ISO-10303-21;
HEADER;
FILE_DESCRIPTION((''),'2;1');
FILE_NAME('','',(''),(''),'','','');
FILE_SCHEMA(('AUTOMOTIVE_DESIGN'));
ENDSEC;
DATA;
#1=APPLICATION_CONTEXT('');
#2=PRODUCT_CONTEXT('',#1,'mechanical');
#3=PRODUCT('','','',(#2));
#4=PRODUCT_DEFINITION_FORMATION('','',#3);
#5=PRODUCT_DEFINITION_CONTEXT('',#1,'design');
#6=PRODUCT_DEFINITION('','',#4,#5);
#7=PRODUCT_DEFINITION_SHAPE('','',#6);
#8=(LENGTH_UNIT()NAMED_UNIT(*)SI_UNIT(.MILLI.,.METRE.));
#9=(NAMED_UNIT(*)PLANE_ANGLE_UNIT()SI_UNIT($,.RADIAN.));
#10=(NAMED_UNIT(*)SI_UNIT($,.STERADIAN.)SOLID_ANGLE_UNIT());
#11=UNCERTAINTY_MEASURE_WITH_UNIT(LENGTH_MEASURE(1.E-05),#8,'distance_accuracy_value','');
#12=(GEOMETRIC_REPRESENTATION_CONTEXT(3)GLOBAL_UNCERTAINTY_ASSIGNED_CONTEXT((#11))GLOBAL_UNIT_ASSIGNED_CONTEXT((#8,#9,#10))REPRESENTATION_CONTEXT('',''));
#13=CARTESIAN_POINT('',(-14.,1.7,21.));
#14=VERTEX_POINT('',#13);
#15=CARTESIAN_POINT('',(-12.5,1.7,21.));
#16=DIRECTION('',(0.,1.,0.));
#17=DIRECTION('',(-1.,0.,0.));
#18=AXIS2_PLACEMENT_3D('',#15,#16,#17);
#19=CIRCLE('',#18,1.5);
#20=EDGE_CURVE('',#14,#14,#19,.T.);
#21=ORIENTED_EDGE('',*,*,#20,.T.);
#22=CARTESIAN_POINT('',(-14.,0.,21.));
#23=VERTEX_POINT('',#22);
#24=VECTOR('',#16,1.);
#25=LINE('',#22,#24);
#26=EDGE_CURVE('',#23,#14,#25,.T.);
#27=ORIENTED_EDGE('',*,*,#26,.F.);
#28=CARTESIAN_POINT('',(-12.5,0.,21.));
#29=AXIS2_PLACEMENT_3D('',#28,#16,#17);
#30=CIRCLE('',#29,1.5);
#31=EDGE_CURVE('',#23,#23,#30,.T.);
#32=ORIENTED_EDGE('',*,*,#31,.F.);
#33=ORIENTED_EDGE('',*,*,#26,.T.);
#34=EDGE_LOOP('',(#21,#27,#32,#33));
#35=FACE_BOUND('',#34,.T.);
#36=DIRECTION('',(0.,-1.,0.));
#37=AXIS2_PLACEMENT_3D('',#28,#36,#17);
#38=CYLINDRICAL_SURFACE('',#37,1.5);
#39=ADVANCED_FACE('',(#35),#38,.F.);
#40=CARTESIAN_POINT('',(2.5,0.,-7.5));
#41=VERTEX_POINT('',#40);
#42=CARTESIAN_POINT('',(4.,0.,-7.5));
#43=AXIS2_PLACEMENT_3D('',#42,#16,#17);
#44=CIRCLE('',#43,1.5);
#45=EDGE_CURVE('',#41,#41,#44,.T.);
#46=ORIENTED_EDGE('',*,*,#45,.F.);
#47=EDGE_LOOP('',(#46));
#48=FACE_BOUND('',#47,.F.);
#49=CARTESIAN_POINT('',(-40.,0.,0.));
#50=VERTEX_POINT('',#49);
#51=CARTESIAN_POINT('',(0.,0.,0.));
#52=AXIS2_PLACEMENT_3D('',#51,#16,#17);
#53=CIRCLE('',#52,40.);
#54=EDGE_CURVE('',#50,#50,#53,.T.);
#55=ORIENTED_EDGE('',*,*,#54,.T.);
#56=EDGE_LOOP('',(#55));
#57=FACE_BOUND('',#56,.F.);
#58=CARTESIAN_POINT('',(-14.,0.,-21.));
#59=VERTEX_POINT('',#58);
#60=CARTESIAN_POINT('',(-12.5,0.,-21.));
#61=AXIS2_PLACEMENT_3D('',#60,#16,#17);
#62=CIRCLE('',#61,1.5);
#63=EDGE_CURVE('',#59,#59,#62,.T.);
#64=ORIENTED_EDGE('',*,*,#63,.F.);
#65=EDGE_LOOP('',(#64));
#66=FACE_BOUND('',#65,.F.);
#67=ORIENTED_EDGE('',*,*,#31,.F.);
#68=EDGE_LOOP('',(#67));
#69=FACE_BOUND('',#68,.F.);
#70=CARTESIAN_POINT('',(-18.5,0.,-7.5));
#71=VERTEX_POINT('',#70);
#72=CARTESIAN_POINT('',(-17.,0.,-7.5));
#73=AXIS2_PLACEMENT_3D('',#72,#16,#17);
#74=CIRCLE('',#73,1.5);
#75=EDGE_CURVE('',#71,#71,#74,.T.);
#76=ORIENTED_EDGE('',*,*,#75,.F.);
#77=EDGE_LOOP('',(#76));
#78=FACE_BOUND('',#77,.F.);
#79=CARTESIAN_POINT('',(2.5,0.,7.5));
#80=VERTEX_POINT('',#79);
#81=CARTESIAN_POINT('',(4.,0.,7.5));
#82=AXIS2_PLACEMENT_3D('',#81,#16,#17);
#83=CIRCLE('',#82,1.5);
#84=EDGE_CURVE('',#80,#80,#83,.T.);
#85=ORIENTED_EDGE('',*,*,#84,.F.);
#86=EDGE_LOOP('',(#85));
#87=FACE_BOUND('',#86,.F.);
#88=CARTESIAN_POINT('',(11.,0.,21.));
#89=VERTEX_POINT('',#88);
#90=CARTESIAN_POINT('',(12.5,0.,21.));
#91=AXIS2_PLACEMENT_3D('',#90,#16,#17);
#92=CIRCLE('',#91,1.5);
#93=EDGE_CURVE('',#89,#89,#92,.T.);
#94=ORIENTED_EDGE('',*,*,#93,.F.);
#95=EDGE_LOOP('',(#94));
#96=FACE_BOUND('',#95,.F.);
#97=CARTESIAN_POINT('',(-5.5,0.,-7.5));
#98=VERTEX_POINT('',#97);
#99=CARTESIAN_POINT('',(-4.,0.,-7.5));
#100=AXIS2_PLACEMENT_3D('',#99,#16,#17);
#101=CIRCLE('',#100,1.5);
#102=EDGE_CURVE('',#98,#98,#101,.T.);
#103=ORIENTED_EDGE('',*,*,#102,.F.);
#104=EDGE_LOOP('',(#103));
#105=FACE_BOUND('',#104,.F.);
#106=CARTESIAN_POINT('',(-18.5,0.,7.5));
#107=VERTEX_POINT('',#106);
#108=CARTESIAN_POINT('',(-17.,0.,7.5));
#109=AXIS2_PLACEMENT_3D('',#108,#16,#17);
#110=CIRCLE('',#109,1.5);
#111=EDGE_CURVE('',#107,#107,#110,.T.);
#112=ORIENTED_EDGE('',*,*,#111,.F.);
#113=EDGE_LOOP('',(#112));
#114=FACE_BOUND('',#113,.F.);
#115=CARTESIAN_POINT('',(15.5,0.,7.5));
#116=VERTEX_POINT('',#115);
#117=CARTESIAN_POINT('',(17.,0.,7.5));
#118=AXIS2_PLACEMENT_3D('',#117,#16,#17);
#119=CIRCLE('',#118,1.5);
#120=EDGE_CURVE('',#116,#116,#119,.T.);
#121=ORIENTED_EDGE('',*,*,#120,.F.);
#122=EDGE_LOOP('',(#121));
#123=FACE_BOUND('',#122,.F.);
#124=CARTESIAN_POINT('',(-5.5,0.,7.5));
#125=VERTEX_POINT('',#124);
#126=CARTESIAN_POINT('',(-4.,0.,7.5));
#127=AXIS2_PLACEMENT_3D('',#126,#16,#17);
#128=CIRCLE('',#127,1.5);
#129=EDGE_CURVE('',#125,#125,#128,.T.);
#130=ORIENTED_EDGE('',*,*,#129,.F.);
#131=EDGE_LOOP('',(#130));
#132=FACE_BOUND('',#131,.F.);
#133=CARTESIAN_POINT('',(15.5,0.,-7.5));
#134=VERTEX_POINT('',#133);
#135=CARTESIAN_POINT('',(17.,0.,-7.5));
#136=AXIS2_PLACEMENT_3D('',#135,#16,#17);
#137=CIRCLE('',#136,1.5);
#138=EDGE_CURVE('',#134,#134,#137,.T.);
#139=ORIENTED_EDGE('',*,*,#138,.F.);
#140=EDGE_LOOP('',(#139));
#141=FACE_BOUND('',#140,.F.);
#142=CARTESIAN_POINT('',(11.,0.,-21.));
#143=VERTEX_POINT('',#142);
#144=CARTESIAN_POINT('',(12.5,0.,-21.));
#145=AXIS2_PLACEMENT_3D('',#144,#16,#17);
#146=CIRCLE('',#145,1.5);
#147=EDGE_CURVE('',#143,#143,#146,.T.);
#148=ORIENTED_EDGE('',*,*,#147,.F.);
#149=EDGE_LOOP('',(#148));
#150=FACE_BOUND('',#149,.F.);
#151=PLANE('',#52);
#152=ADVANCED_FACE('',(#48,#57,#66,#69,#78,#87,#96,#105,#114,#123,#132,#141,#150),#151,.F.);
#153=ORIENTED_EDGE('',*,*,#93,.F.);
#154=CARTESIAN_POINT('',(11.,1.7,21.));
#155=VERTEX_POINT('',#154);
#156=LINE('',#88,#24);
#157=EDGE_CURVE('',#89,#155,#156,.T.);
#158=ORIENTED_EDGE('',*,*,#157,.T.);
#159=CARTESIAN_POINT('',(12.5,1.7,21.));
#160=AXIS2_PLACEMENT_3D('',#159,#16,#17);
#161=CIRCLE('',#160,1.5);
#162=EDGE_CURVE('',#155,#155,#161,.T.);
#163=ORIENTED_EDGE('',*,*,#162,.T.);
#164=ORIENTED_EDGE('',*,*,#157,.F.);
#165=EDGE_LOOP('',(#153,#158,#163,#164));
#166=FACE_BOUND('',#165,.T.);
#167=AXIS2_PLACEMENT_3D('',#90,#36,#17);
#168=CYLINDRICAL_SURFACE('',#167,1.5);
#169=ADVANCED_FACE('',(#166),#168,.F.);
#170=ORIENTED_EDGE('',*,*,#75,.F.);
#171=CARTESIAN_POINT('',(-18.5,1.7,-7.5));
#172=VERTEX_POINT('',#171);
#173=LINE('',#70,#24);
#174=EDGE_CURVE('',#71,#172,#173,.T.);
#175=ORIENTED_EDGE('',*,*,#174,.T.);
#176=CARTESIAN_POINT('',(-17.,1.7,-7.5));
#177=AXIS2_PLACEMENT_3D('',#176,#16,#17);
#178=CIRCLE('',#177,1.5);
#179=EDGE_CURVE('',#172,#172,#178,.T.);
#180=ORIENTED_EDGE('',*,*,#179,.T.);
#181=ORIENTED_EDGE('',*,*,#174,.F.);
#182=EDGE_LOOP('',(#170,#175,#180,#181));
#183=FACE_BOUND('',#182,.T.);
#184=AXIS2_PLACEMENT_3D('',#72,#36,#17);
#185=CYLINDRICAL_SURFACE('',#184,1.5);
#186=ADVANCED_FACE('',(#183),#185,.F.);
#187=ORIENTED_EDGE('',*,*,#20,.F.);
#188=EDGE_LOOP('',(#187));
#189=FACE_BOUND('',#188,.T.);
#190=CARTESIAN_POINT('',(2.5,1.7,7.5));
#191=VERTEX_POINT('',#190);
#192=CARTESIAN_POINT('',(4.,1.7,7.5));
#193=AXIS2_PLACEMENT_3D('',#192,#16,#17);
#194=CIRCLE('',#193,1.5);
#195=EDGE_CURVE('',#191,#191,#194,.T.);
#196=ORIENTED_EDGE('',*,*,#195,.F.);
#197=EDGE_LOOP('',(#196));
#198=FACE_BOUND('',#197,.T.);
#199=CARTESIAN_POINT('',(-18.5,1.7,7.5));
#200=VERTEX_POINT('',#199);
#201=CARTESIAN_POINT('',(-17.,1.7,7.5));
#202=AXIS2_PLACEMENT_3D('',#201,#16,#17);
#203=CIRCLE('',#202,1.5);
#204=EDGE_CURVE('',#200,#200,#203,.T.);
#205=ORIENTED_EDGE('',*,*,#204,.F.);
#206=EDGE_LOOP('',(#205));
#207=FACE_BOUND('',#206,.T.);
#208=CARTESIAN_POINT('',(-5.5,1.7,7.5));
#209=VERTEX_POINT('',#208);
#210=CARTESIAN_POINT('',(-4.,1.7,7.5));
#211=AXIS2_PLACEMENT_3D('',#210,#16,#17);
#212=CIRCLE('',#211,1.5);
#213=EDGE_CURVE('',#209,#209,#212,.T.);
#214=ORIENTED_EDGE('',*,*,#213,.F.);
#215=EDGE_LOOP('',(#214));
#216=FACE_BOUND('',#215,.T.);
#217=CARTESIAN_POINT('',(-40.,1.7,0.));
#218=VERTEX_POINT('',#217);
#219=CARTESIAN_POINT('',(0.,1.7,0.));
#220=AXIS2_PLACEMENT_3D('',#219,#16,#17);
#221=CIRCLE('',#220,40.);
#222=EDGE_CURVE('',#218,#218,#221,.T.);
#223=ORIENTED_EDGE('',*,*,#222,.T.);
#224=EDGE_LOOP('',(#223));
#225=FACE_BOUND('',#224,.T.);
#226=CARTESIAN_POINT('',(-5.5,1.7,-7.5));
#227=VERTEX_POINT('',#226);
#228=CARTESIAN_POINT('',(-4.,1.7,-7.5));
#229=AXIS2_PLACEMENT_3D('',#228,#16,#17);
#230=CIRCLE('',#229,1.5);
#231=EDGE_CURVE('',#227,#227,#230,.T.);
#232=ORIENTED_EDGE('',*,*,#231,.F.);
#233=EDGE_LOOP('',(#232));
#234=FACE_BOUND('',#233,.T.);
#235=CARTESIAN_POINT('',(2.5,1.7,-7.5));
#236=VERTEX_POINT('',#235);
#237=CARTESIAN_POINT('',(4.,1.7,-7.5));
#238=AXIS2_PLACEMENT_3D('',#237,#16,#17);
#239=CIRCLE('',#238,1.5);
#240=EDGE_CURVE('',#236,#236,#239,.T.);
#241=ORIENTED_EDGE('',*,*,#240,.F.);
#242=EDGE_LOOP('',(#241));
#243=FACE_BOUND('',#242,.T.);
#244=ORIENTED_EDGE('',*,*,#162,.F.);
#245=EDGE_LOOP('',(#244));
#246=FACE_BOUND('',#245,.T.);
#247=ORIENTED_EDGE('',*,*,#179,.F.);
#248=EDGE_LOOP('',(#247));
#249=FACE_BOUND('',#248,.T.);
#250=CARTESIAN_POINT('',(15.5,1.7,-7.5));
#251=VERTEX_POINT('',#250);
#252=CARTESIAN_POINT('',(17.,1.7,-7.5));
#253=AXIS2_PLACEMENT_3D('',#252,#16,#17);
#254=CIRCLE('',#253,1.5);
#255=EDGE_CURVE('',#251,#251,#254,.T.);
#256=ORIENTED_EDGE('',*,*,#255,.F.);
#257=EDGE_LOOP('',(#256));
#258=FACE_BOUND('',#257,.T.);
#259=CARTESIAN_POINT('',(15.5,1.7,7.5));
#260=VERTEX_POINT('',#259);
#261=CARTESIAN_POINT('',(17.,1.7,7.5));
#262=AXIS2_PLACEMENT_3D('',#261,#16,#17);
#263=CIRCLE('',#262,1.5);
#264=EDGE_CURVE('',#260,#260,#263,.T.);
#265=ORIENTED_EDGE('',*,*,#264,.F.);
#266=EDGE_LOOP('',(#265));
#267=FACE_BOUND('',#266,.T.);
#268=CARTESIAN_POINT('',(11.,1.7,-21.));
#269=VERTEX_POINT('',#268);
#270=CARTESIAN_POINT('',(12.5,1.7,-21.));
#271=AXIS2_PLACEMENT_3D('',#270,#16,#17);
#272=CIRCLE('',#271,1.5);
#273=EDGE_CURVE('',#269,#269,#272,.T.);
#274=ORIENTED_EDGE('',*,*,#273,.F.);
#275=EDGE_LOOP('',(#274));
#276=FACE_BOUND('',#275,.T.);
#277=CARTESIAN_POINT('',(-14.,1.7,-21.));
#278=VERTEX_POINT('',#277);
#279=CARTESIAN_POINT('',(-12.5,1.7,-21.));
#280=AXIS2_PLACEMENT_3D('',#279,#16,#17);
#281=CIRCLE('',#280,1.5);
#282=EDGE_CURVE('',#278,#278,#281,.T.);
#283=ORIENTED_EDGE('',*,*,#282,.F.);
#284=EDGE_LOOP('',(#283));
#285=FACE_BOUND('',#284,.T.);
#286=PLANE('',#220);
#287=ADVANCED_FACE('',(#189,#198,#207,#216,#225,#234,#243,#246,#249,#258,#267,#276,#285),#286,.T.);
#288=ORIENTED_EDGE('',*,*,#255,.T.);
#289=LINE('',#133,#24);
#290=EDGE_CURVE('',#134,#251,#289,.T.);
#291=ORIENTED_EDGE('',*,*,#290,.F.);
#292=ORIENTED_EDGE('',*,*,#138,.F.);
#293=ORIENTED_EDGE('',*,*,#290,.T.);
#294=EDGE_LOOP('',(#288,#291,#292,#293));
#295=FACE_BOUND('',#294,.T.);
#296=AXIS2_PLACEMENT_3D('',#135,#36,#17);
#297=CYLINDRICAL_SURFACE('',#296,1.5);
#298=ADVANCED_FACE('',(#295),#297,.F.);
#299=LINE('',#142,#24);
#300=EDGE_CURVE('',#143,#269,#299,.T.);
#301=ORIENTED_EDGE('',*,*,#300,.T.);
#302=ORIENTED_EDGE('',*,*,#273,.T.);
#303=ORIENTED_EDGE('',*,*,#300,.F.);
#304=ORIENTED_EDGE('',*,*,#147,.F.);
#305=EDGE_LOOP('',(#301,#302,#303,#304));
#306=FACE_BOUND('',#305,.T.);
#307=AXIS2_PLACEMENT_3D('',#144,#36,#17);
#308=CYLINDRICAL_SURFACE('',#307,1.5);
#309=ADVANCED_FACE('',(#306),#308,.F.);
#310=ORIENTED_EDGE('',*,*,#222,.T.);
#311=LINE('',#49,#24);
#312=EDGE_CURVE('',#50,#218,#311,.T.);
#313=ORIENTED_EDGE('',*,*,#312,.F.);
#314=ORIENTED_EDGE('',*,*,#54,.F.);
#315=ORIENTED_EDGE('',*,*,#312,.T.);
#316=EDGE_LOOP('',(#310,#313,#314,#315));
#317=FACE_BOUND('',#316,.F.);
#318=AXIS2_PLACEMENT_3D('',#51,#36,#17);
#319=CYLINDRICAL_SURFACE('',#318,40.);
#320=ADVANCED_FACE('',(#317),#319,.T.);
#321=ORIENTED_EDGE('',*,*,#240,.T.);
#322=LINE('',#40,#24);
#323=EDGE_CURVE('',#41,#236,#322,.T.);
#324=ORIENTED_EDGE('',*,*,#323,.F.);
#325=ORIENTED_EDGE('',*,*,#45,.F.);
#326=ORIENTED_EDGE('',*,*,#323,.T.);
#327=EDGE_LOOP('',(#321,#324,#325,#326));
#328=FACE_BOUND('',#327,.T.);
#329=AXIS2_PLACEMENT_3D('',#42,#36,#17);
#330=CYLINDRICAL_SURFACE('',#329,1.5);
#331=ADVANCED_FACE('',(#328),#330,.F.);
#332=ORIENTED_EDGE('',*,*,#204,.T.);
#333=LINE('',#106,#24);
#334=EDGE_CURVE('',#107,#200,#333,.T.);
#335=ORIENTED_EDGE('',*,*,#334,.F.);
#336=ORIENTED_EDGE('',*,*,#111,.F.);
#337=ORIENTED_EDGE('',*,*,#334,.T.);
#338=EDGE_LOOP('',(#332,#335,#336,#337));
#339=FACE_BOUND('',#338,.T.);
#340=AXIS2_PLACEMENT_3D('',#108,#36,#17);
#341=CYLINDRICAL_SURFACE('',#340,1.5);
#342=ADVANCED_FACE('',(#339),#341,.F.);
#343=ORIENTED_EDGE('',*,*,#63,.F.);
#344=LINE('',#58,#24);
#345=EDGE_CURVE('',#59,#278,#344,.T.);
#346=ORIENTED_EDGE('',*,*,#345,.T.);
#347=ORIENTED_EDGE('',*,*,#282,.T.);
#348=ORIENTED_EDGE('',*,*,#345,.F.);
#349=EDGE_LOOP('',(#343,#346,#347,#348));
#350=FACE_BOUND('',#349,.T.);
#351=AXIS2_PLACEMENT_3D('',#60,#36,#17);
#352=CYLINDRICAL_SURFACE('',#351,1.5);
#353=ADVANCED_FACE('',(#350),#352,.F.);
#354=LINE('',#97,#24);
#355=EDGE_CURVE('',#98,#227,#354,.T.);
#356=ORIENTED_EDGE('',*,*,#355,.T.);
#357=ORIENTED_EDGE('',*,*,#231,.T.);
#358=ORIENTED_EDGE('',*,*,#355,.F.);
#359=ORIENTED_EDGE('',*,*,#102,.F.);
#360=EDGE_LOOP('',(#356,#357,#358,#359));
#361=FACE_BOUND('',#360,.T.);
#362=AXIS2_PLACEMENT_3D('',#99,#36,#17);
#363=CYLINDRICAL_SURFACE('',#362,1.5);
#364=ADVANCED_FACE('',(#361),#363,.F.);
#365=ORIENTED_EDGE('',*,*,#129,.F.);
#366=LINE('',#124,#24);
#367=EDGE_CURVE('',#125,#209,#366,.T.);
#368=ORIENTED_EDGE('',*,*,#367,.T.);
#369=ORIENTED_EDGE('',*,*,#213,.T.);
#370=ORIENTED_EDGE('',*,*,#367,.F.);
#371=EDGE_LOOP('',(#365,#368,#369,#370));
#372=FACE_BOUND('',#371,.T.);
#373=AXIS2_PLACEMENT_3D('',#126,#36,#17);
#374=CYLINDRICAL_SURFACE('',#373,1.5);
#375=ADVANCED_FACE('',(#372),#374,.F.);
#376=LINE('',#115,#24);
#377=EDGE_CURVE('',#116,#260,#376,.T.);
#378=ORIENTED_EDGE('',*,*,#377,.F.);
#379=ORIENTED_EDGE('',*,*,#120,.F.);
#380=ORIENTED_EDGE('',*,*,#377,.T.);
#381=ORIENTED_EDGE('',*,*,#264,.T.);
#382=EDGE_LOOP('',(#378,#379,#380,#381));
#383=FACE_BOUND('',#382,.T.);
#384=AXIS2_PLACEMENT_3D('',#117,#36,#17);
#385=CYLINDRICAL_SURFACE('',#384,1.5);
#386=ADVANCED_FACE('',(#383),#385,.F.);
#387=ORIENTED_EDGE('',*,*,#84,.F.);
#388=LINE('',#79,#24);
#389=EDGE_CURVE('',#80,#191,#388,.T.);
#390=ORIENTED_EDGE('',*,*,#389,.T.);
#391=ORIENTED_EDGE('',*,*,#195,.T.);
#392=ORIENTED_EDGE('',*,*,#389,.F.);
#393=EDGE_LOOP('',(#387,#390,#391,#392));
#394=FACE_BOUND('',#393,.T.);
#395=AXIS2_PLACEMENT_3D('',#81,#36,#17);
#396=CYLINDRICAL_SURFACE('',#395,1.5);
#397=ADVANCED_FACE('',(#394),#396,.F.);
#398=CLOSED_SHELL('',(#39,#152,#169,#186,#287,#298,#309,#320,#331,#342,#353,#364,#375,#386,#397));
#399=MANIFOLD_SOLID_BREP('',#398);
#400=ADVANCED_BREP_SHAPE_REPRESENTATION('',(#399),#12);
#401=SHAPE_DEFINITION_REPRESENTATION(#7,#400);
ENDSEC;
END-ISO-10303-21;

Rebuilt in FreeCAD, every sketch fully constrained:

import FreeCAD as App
import Part
import Sketcher

V = App.Vector
Q = App.Units.Quantity

doc = App.newDocument("Part")
body = doc.addObject("PartDesign::Body", "Body")

sketch1 = body.newObject("Sketcher::SketchObject", "Sketch")
sketch1.AttachmentSupport = (doc.getObject("XZ_Plane"), [""])
sketch1.MapMode = "FlatFace"
sketch1.addGeometry([
    Part.Circle(V(0, 0, 0), V(0, 0, 1), 40),
    Part.Circle(V(12.5, -21, 0), V(0, 0, 1), 1.5),
    Part.Circle(V(17, -7.5, 0), V(0, 0, 1), 1.5),
    Part.Circle(V(4, -7.5, 0), V(0, 0, 1), 1.5),
    Part.Circle(V(-12.5, -21, 0), V(0, 0, 1), 1.5),
    Part.Circle(V(-4, -7.5, 0), V(0, 0, 1), 1.5),
    Part.Circle(V(-17, -7.5, 0), V(0, 0, 1), 1.5),
    Part.Circle(V(17, 7.5, 0), V(0, 0, 1), 1.5),
    Part.Circle(V(4, 7.5, 0), V(0, 0, 1), 1.5),
    Part.Circle(V(12.5, 21, 0), V(0, 0, 1), 1.5),
    Part.Circle(V(-4, 7.5, 0), V(0, 0, 1), 1.5),
    Part.Circle(V(-17, 7.5, 0), V(0, 0, 1), 1.5),
    Part.Circle(V(-12.5, 21, 0), V(0, 0, 1), 1.5),
], False)
sketch1.addConstraint([
    Sketcher.Constraint("Coincident", 0, 3, -1, 1),
    Sketcher.Constraint("Equal", 1, 2),
    Sketcher.Constraint("Equal", 2, 3),
    Sketcher.Constraint("Equal", 3, 4),
    Sketcher.Constraint("Equal", 4, 5),
    Sketcher.Constraint("Equal", 5, 6),
    Sketcher.Constraint("Equal", 6, 7),
    Sketcher.Constraint("Equal", 7, 8),
    Sketcher.Constraint("Equal", 8, 9),
    Sketcher.Constraint("Equal", 9, 10),
    Sketcher.Constraint("Equal", 10, 11),
    Sketcher.Constraint("Equal", 11, 12),
    Sketcher.Constraint("Symmetric", 6, 3, 7, 3, -1, 1),
    Sketcher.Constraint("Symmetric", 5, 3, 8, 3, -1, 1),
    Sketcher.Constraint("Symmetric", 4, 3, 9, 3, -1, 1),
    Sketcher.Constraint("Symmetric", 3, 3, 10, 3, -1, 1),
    Sketcher.Constraint("Symmetric", 2, 3, 11, 3, -1, 1),
    Sketcher.Constraint("Symmetric", 1, 3, 12, 3, -1, 1),
    Sketcher.Constraint("Symmetric", 1, 3, 4, 3, -2),
    Sketcher.Constraint("Symmetric", 3, 3, 5, 3, -2),
    Sketcher.Constraint("Symmetric", 2, 3, 6, 3, -2),
    Sketcher.Constraint("Horizontal", 2, 3, 3, 3),
    Sketcher.Constraint("Diameter", 0, Q("80 mm")),
    Sketcher.Constraint("Diameter", 1, Q("3 mm")),
    Sketcher.Constraint("DistanceY", 1, 3, -1, 1, Q("21 mm")),
    Sketcher.Constraint("DistanceX", -1, 1, 3, 3, Q("4 mm")),
    Sketcher.Constraint("DistanceX", 3, 3, 2, 3, Q("13 mm")),
    Sketcher.Constraint("DistanceX", -1, 1, 1, 3, Q("12.5 mm")),
    Sketcher.Constraint("DistanceY", 2, 3, -1, 1, Q("7.5 mm")),
])
pad1 = body.newObject("PartDesign::Pad", "Pad")
pad1.Profile = sketch1
pad1.Length = 1.7
pad1.Reversed = True

doc.recompute()
